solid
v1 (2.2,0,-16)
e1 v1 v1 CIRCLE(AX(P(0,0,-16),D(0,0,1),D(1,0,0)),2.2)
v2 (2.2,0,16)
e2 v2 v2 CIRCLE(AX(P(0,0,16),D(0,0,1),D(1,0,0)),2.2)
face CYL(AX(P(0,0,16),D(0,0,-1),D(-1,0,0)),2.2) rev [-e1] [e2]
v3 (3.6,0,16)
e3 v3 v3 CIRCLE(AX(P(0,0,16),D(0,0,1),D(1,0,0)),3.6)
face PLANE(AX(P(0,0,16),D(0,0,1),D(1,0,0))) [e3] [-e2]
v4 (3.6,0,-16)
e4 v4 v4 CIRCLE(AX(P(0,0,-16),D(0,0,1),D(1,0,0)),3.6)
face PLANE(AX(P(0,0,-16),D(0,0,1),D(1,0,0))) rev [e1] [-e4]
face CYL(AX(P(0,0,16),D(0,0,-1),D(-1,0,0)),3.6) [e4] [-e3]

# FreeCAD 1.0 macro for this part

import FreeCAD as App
import Part
import Sketcher

V = App.Vector
Q = App.Units.Quantity

doc = App.newDocument("Part")
body = doc.addObject("PartDesign::Body", "Body")

# Sketch on XY plane
sketch1 = doc.addObject("Sketcher::SketchObject", "Sketch")
body.addObject(sketch1)
sketch1.AttachmentSupport = (doc.XY_Plane, [""])
sketch1.MapMode = "FlatFace"
sketch1.addGeometry(Part.Circle(V(0, 0, 0), V(0, 0, 1), 3.6), False)
sketch1.addGeometry(Part.Circle(V(0, 0, 0), V(0, 0, 1), 2.2), False)
sketch1.addConstraint(Sketcher.Constraint("Coincident", 0, 3, -1, 1))
sketch1.addConstraint(Sketcher.Constraint("Coincident", 1, 3, -1, 1))
sketch1.addConstraint(Sketcher.Constraint("Diameter", 0, Q("7.2 mm")))
sketch1.addConstraint(Sketcher.Constraint("Diameter", 1, Q("4.4 mm")))
pad1 = doc.addObject("PartDesign::Pad", "Pad")
body.addObject(pad1)
pad1.Profile = sketch1
pad1.Length = 32
pad1.Midplane = True

doc.recompute()
